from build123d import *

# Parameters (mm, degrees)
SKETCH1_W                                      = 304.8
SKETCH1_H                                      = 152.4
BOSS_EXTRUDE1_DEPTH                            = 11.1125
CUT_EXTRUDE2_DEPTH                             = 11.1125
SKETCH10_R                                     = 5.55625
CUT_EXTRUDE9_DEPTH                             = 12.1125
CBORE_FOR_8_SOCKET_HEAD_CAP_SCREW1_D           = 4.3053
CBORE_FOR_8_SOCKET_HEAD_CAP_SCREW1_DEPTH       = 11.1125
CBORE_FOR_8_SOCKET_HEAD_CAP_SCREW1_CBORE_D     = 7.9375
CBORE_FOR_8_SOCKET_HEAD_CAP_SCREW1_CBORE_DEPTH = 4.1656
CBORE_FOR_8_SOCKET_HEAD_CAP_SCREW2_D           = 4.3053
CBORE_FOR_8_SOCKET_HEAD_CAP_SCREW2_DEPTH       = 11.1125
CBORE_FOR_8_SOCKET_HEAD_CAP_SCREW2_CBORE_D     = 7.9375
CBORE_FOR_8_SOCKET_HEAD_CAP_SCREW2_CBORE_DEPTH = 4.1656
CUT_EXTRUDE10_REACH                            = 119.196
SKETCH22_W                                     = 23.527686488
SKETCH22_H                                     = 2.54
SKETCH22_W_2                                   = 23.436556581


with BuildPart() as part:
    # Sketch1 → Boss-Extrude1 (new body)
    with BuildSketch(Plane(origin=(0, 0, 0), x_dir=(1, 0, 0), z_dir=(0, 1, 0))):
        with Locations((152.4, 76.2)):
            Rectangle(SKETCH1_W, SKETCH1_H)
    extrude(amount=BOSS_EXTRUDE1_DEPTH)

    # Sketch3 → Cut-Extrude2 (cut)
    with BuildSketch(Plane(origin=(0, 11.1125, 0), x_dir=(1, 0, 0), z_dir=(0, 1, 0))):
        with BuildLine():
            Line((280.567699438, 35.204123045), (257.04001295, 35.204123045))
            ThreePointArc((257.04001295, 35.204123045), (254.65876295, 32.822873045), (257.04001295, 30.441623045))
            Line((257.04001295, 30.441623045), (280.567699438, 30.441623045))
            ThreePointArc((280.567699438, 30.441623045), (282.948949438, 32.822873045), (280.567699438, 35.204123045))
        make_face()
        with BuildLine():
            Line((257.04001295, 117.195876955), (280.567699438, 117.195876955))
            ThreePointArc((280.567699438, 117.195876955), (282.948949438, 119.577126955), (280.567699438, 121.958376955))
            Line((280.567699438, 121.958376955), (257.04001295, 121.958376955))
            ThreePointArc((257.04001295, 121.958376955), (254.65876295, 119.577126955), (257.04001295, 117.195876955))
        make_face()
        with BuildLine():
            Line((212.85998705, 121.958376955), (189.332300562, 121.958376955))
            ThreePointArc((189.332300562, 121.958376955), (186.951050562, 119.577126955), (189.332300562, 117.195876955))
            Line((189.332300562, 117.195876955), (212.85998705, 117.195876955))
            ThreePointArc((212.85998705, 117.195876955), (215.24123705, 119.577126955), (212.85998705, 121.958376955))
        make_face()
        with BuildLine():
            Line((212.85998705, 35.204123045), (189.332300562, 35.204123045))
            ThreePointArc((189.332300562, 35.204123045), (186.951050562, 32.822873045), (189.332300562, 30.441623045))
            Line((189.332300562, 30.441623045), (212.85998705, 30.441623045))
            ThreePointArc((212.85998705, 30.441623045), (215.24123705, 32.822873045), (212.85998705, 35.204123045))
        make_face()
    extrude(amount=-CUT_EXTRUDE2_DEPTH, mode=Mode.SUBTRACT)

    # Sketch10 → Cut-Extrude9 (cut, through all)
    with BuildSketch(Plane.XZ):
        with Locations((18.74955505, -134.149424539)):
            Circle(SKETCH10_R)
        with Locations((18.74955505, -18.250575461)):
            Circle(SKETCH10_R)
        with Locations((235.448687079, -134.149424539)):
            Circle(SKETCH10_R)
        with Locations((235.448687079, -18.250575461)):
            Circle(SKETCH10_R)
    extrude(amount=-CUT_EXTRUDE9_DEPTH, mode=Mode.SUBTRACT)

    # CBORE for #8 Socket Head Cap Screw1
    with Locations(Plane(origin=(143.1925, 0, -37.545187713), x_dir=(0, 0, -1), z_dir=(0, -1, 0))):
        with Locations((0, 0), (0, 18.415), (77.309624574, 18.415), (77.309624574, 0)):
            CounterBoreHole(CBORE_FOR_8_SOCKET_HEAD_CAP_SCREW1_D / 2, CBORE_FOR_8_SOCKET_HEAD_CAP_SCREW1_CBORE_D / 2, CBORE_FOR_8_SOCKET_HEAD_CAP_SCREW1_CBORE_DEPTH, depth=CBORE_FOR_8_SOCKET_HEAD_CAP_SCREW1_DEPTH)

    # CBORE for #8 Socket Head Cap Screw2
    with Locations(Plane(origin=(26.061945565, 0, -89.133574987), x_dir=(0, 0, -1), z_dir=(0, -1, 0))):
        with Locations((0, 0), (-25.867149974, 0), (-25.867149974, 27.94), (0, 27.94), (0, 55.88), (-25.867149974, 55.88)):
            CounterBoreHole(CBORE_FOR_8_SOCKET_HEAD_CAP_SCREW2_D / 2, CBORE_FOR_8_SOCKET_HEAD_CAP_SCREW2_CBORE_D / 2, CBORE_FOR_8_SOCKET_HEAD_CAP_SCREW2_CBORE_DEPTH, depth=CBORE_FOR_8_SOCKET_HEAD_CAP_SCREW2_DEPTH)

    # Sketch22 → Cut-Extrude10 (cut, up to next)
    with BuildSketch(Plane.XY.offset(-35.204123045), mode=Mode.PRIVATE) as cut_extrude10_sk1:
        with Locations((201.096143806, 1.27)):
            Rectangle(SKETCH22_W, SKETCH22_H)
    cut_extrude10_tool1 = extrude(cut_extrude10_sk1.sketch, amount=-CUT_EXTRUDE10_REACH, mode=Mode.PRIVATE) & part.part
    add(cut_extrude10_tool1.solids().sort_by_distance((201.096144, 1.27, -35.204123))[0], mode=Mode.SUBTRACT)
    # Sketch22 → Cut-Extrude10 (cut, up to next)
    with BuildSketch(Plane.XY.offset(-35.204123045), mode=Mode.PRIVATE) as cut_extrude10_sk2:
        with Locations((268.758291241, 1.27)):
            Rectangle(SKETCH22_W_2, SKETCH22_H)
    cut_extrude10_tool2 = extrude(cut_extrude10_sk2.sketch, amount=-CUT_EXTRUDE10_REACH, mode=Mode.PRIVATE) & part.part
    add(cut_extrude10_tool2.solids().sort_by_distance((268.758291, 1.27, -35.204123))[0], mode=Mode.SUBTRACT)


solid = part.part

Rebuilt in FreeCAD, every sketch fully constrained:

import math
import FreeCAD as App
import Part
import Sketcher
from FreeCAD import Vector
Q = App.Units.Quantity


def add_polygon(sketch, points):
    """Adds a closed chain of lines whose ends are joined by coincident constraints."""
    first, n = sketch.GeometryCount, len(points)
    for a, b in zip(points, points[1:] + points[:1]):
        sketch.addGeometry(Part.LineSegment(App.Vector(*a, 0), App.Vector(*b, 0)), False)
    for i in range(n):
        sketch.addConstraint(Sketcher.Constraint("Coincident", first + i, 2, first + (i + 1) % n, 1))

doc = App.newDocument("Part")
body = doc.addObject("PartDesign::Body", "Body")

# Sketch on XZ plane
sketch1 = body.newObject("Sketcher::SketchObject", "Sketch")
sketch1.AttachmentSupport = (doc.getObject("XZ_Plane"), [""])
sketch1.MapMode = "FlatFace"
add_polygon(sketch1, [(0, -152), (0, 0), (305, 0), (305, -152)])  # lines 0-3
sketch1.addConstraint(Sketcher.Constraint("Vertical", 0))
sketch1.addConstraint(Sketcher.Constraint("Horizontal", 1))
sketch1.addConstraint(Sketcher.Constraint("Vertical", 2))
sketch1.addConstraint(Sketcher.Constraint("Horizontal", 3))
sketch1.addConstraint(Sketcher.Constraint("Coincident", 0, 2, -1, 1))
sketch1.addConstraint(Sketcher.Constraint("DistanceX", 1, 1, 1, 2, Q("12 in")))
sketch1.addConstraint(Sketcher.Constraint("DistanceY", 0, 1, 0, 2, Q("6 in")))
pad1 = body.newObject("PartDesign::Pad", "Pad")
pad1.Profile = sketch1
pad1.Length = Q("0.4375 in")
pad1.Reversed = True

# Sketch on XZ plane
sketch2 = body.newObject("Sketcher::SketchObject", "Sketch001")
sketch2.AttachmentSupport = (doc.getObject("XZ_Plane"), [""])
sketch2.MapMode = "FlatFace"
sketch2.AttachmentOffset = App.Placement(Vector(0, 0, -0.4375 * 25.4), App.Rotation())
sketch2.addGeometry(Part.LineSegment(Vector(280.6, -35.2, 0), Vector(257, -35.2, 0)), False)
sketch2.addGeometry(Part.ArcOfCircle(Part.Circle(Vector(257, -32.8, 0), Vector(0, 0, 1), 2.4), math.radians(90), math.radians(270)), False)
sketch2.addGeometry(Part.LineSegment(Vector(257, -30.4, 0), Vector(280.6, -30.4, 0)), False)
sketch2.addGeometry(Part.ArcOfCircle(Part.Circle(Vector(280.6, -32.8, 0), Vector(0, 0, 1), 2.4), math.radians(-90), math.radians(90)), False)
sketch2.addGeometry(Part.LineSegment(Vector(257, -117.2, 0), Vector(280.6, -117.2, 0)), False)
sketch2.addGeometry(Part.ArcOfCircle(Part.Circle(Vector(280.6, -119.6, 0), Vector(0, 0, 1), 2.4), math.radians(-90), math.radians(90)), False)
sketch2.addGeometry(Part.LineSegment(Vector(280.6, -122, 0), Vector(257, -122, 0)), False)
sketch2.addGeometry(Part.ArcOfCircle(Part.Circle(Vector(257, -119.6, 0), Vector(0, 0, 1), 2.4), math.radians(90), math.radians(270)), False)
sketch2.addGeometry(Part.LineSegment(Vector(212.9, -122, 0), Vector(189.3, -122, 0)), False)
sketch2.addGeometry(Part.ArcOfCircle(Part.Circle(Vector(189.3, -119.6, 0), Vector(0, 0, 1), 2.4), math.radians(90), math.radians(270)), False)
sketch2.addGeometry(Part.LineSegment(Vector(189.3, -117.2, 0), Vector(212.9, -117.2, 0)), False)
sketch2.addGeometry(Part.ArcOfCircle(Part.Circle(Vector(212.9, -119.6, 0), Vector(0, 0, 1), 2.4), math.radians(-90), math.radians(90)), False)
sketch2.addGeometry(Part.LineSegment(Vector(212.9, -35.2, 0), Vector(189.3, -35.2, 0)), False)
sketch2.addGeometry(Part.ArcOfCircle(Part.Circle(Vector(189.3, -32.8, 0), Vector(0, 0, 1), 2.4), math.radians(90), math.radians(270)), False)
sketch2.addGeometry(Part.LineSegment(Vector(189.3, -30.4, 0), Vector(212.9, -30.4, 0)), False)
sketch2.addGeometry(Part.ArcOfCircle(Part.Circle(Vector(212.9, -32.8, 0), Vector(0, 0, 1), 2.4), math.radians(-90), math.radians(90)), False)
sketch2.addConstraint(Sketcher.Constraint("Tangent", 0, 2, 1, 2))
sketch2.addConstraint(Sketcher.Constraint("Tangent", 1, 1, 2, 1))
sketch2.addConstraint(Sketcher.Constraint("Tangent", 2, 2, 3, 2))
sketch2.addConstraint(Sketcher.Constraint("Tangent", 3, 1, 0, 1))
sketch2.addConstraint(Sketcher.Constraint("Tangent", 4, 2, 5, 2))
sketch2.addConstraint(Sketcher.Constraint("Tangent", 5, 1, 6, 1))
sketch2.addConstraint(Sketcher.Constraint("Tangent", 6, 2, 7, 2))
sketch2.addConstraint(Sketcher.Constraint("Tangent", 7, 1, 4, 1))
sketch2.addConstraint(Sketcher.Constraint("Tangent", 8, 2, 9, 2))
sketch2.addConstraint(Sketcher.Constraint("Tangent", 9, 1, 10, 1))
sketch2.addConstraint(Sketcher.Constraint("Tangent", 10, 2, 11, 2))
sketch2.addConstraint(Sketcher.Constraint("Tangent", 11, 1, 8, 1))
sketch2.addConstraint(Sketcher.Constraint("Tangent", 12, 2, 13, 2))
sketch2.addConstraint(Sketcher.Constraint("Tangent", 13, 1, 14, 1))
sketch2.addConstraint(Sketcher.Constraint("Tangent", 14, 2, 15, 2))
sketch2.addConstraint(Sketcher.Constraint("Tangent", 15, 1, 12, 1))
sketch2.addConstraint(Sketcher.Constraint("Horizontal", 0))
sketch2.addConstraint(Sketcher.Constraint("Horizontal", 2))
sketch2.addConstraint(Sketcher.Constraint("Horizontal", 4))
sketch2.addConstraint(Sketcher.Constraint("Horizontal", 6))
sketch2.addConstraint(Sketcher.Constraint("Horizontal", 8))
sketch2.addConstraint(Sketcher.Constraint("Horizontal", 10))
sketch2.addConstraint(Sketcher.Constraint("Horizontal", 12))
sketch2.addConstraint(Sketcher.Constraint("Horizontal", 14))
sketch2.addConstraint(Sketcher.Constraint("Equal", 3, 5))
sketch2.addConstraint(Sketcher.Constraint("Equal", 7, 9))
sketch2.addConstraint(Sketcher.Constraint("Equal", 11, 13))
sketch2.addConstraint(Sketcher.Constraint("Horizontal", 7, 3, 9, 3))
sketch2.addConstraint(Sketcher.Constraint("Horizontal", 3, 3, 13, 3))
sketch2.addConstraint(Sketcher.Constraint("Vertical", 3, 3, 5, 3))
sketch2.addConstraint(Sketcher.Constraint("Vertical", 1, 3, 7, 3))
sketch2.addConstraint(Sketcher.Constraint("Vertical", 9, 3, 13, 3))
sketch2.addConstraint(Sketcher.Constraint("Vertical", 11, 3, 15, 3))
sketch2.addConstraint(Sketcher.Constraint("Equal", 6, 8))
sketch2.addConstraint(Sketcher.Constraint("Radius", 1, Q("0.09375 in")))
sketch2.addConstraint(Sketcher.Constraint("DistanceX", -1, 1, 3, 3, Q("280.567699 mm")))
sketch2.addConstraint(Sketcher.Constraint("DistanceX", -1, 1, 9, 3, Q("189.332301 mm")))
sketch2.addConstraint(Sketcher.Constraint("DistanceX", 0, 2, 0, 1, Q("23.527686 mm")))
sketch2.addConstraint(Sketcher.Constraint("DistanceY", 1, 3, -1, 1, Q("32.822873 mm")))
sketch2.addConstraint(Sketcher.Constraint("DistanceY", 5, 3, -1, 1, Q("119.577127 mm")))
pocket1 = body.newObject("PartDesign::Pocket", "Pocket")
pocket1.Profile = sketch2
pocket1.Length = Q("0.4375 in")
pocket1.Reversed = True

# Sketch on XZ plane
sketch3 = body.newObject("Sketcher::SketchObject", "Sketch002")
sketch3.AttachmentSupport = (doc.getObject("XZ_Plane"), [""])
sketch3.MapMode = "FlatFace"
sketch3.addGeometry(Part.Circle(Vector(19, -134, 0), Vector(0, 0, 1), 6), False)
sketch3.addGeometry(Part.Circle(Vector(19, -18, 0), Vector(0, 0, 1), 6), False)
sketch3.addGeometry(Part.Circle(Vector(235, -134, 0), Vector(0, 0, 1), 6), False)
sketch3.addGeometry(Part.Circle(Vector(235, -18, 0), Vector(0, 0, 1), 6), False)
sketch3.addConstraint(Sketcher.Constraint("Equal", 0, 1))
sketch3.addConstraint(Sketcher.Constraint("Equal", 1, 2))
sketch3.addConstraint(Sketcher.Constraint("Equal", 2, 3))
sketch3.addConstraint(Sketcher.Constraint("Horizontal", 0, 3, 2, 3))
sketch3.addConstraint(Sketcher.Constraint("Horizontal", 1, 3, 3, 3))
sketch3.addConstraint(Sketcher.Constraint("Vertical", 0, 3, 1, 3))
sketch3.addConstraint(Sketcher.Constraint("Vertical", 2, 3, 3, 3))
sketch3.addConstraint(Sketcher.Constraint("Diameter", 0, Q("0.4375 in")))
sketch3.addConstraint(Sketcher.Constraint("DistanceY", 0, 3, 1, 3, Q("115.898849 mm")))
sketch3.addConstraint(Sketcher.Constraint("DistanceX", -1, 1, 0, 3, Q("18.749555 mm")))
sketch3.addConstraint(Sketcher.Constraint("DistanceY", 0, 3, -1, 1, Q("134.149425 mm")))
sketch3.addConstraint(Sketcher.Constraint("DistanceX", -1, 1, 2, 3, Q("235.448687 mm")))
pocket2 = body.newObject("PartDesign::Pocket", "Pocket001")
pocket2.Profile = sketch3
pocket2.Type = "ThroughAll"

# Sketch on XZ plane
sketch4 = body.newObject("Sketcher::SketchObject", "Sketch003")
sketch4.AttachmentSupport = (doc.getObject("XZ_Plane"), [""])
sketch4.MapMode = "FlatFace"
sketch4.addGeometry(Part.Circle(Vector(143.2, -37.5, 0), Vector(0, 0, 1), 2.2), False)
sketch4.addGeometry(Part.Circle(Vector(161.6, -37.5, 0), Vector(0, 0, 1), 2.2), False)
sketch4.addGeometry(Part.Circle(Vector(161.6, -114.9, 0), Vector(0, 0, 1), 2.2), False)
sketch4.addGeometry(Part.Circle(Vector(143.2, -114.9, 0), Vector(0, 0, 1), 2.2), False)
sketch4.addConstraint(Sketcher.Constraint("Equal", 0, 1))
sketch4.addConstraint(Sketcher.Constraint("Equal", 1, 2))
sketch4.addConstraint(Sketcher.Constraint("Equal", 2, 3))
sketch4.addConstraint(Sketcher.Constraint("Horizontal", 0, 3, 1, 3))
sketch4.addConstraint(Sketcher.Constraint("Horizontal", 2, 3, 3, 3))
sketch4.addConstraint(Sketcher.Constraint("Vertical", 1, 3, 2, 3))
sketch4.addConstraint(Sketcher.Constraint("Vertical", 0, 3, 3, 3))
sketch4.addConstraint(Sketcher.Constraint("Diameter", 0, Q("0.1695 in")))
sketch4.addConstraint(Sketcher.Constraint("DistanceX", 0, 3, 1, 3, Q("0.725 in")))
sketch4.addConstraint(Sketcher.Constraint("DistanceX", -1, 1, 0, 3, Q("5.6375 in")))
sketch4.addConstraint(Sketcher.Constraint("DistanceY", 0, 3, -1, 1, Q("37.545188 mm")))
sketch4.addConstraint(Sketcher.Constraint("DistanceY", 2, 3, -1, 1, Q("114.854812 mm")))
doc.recompute()
hole = body.newObject("PartDesign::Hole", "Hole")
hole.Profile = sketch4
hole.ThreadType = "None"
hole.Diameter = Q("0.1695 in")
hole.DepthType = "Dimension"
hole.Depth = Q("0.4375 in")
hole.DrillPoint = "Flat"
hole.HoleCutType = "Counterbore"
hole.HoleCutDiameter = Q("0.3125 in")
hole.HoleCutDepth = Q("0.164 in")

# Sketch on XZ plane
sketch5 = body.newObject("Sketcher::SketchObject", "Sketch004")
sketch5.AttachmentSupport = (doc.getObject("XZ_Plane"), [""])
sketch5.MapMode = "FlatFace"
sketch5.addGeometry(Part.Circle(Vector(26.1, -89.1, 0), Vector(0, 0, 1), 2.2), False)
sketch5.addGeometry(Part.Circle(Vector(26.1, -63.3, 0), Vector(0, 0, 1), 2.2), False)
sketch5.addGeometry(Part.Circle(Vector(54, -63.3, 0), Vector(0, 0, 1), 2.2), False)
sketch5.addGeometry(Part.Circle(Vector(54, -89.1, 0), Vector(0, 0, 1), 2.2), False)
sketch5.addGeometry(Part.Circle(Vector(81.9, -89.1, 0), Vector(0, 0, 1), 2.2), False)
sketch5.addGeometry(Part.Circle(Vector(81.9, -63.3, 0), Vector(0, 0, 1), 2.2), False)
sketch5.addConstraint(Sketcher.Constraint("Equal", 0, 1))
sketch5.addConstraint(Sketcher.Constraint("Equal", 1, 2))
sketch5.addConstraint(Sketcher.Constraint("Equal", 2, 3))
sketch5.addConstraint(Sketcher.Constraint("Equal", 3, 4))
sketch5.addConstraint(Sketcher.Constraint("Equal", 4, 5))
sketch5.addConstraint(Sketcher.Constraint("Horizontal", 1, 3, 2, 3))
sketch5.addConstraint(Sketcher.Constraint("Horizontal", 0, 3, 3, 3))
sketch5.addConstraint(Sketcher.Constraint("Horizontal", 3, 3, 4, 3))
sketch5.addConstraint(Sketcher.Constraint("Horizontal", 2, 3, 5, 3))
sketch5.addConstraint(Sketcher.Constraint("Vertical", 0, 3, 1, 3))
sketch5.addConstraint(Sketcher.Constraint("Vertical", 2, 3, 3, 3))
sketch5.addConstraint(Sketcher.Constraint("Vertical", 4, 3, 5, 3))
sketch5.addConstraint(Sketcher.Constraint("Diameter", 0, Q("0.1695 in")))
sketch5.addConstraint(Sketcher.Constraint("DistanceX", 1, 3, 2, 3, Q("1.1 in")))
sketch5.addConstraint(Sketcher.Constraint("DistanceX", 3, 3, 4, 3, Q("1.1 in")))
sketch5.addConstraint(Sketcher.Constraint("DistanceY", 0, 3, 1, 3, Q("25.86715 mm")))
sketch5.addConstraint(Sketcher.Constraint("DistanceX", -1, 1, 0, 3, Q("26.061946 mm")))
sketch5.addConstraint(Sketcher.Constraint("DistanceY", 0, 3, -1, 1, Q("89.133575 mm")))
doc.recompute()
hole2 = body.newObject("PartDesign::Hole", "Hole001")
hole2.Profile = sketch5
hole2.ThreadType = "None"
hole2.Diameter = Q("0.1695 in")
hole2.DepthType = "Dimension"
hole2.Depth = Q("0.4375 in")
hole2.DrillPoint = "Flat"
hole2.HoleCutType = "Counterbore"
hole2.HoleCutDiameter = Q("0.3125 in")
hole2.HoleCutDepth = Q("0.164 in")

# Sketch on XY plane
sketch6 = body.newObject("Sketcher::SketchObject", "Sketch005")
sketch6.AttachmentSupport = (doc.getObject("XY_Plane"), [""])
sketch6.MapMode = "FlatFace"
sketch6.AttachmentOffset = App.Placement(Vector(0, 0, -35.204123), App.Rotation())
add_polygon(sketch6, [(189.3, 2.5), (189.3, 0), (212.9, 0), (212.9, 2.5)])  # lines 0-3
sketch6.addConstraint(Sketcher.Constraint("Vertical", 0))
sketch6.addConstraint(Sketcher.Constraint("Horizontal", 1))
sketch6.addConstraint(Sketcher.Constraint("Vertical", 2))
sketch6.addConstraint(Sketcher.Constraint("Horizontal", 3))
sketch6.addConstraint(Sketcher.Constraint("PointOnObject", 0, 2, -1))
sketch6.addConstraint(Sketcher.Constraint("DistanceY", 0, 2, 0, 1, Q("0.1 in")))
sketch6.addConstraint(Sketcher.Constraint("DistanceX", -1, 1, 0, 2, Q("189.332301 mm")))
sketch6.addConstraint(Sketcher.Constraint("DistanceX", 1, 1, 1, 2, Q("23.527686 mm")))
pocket3 = body.newObject("PartDesign::Pocket", "Pocket002")
pocket3.Profile = sketch6
pocket3.Type = "UpToFirst"

# Sketch on XY plane
sketch7 = body.newObject("Sketcher::SketchObject", "Sketch006")
sketch7.AttachmentSupport = (doc.getObject("XY_Plane"), [""])
sketch7.MapMode = "FlatFace"
sketch7.AttachmentOffset = App.Placement(Vector(0, 0, -35.204123), App.Rotation())
add_polygon(sketch7, [(257, 2.5), (257, 0), (280.5, 0), (280.5, 2.5)])  # lines 0-3
sketch7.addConstraint(Sketcher.Constraint("Vertical", 0))
sketch7.addConstraint(Sketcher.Constraint("Horizontal", 1))
sketch7.addConstraint(Sketcher.Constraint("Vertical", 2))
sketch7.addConstraint(Sketcher.Constraint("Horizontal", 3))
sketch7.addConstraint(Sketcher.Constraint("PointOnObject", 0, 2, -1))
sketch7.addConstraint(Sketcher.Constraint("DistanceY", 0, 2, 0, 1, Q("0.1 in")))
sketch7.addConstraint(Sketcher.Constraint("DistanceX", 1, 1, 1, 2, Q("23.436557 mm")))
sketch7.addConstraint(Sketcher.Constraint("DistanceX", -1, 1, 1, 2, Q("280.47657 mm")))
pocket4 = body.newObject("PartDesign::Pocket", "Pocket003")
pocket4.Profile = sketch7
pocket4.Type = "UpToFirst"

doc.recompute()
